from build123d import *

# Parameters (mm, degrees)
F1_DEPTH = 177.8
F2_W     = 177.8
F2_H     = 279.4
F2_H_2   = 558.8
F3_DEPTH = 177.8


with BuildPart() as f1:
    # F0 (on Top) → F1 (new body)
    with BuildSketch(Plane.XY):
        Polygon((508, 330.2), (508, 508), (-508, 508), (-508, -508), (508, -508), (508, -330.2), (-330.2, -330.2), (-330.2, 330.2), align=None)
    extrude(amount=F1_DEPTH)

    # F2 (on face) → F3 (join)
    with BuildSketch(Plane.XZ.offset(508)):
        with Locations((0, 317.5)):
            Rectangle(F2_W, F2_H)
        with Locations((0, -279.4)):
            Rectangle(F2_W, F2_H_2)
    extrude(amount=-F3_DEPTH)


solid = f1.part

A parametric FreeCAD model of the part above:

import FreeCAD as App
import Part
import Sketcher
from FreeCAD import Vector
Q = App.Units.Quantity


def add_polygon(sketch, points):
    """Adds a closed chain of lines whose ends are joined by coincident constraints."""
    first, n = sketch.GeometryCount, len(points)
    for a, b in zip(points, points[1:] + points[:1]):
        sketch.addGeometry(Part.LineSegment(App.Vector(*a, 0), App.Vector(*b, 0)), False)
    for i in range(n):
        sketch.addConstraint(Sketcher.Constraint("Coincident", first + i, 2, first + (i + 1) % n, 1))

doc = App.newDocument("Part")
body = doc.addObject("PartDesign::Body", "Body")

sketch1 = body.newObject("Sketcher::SketchObject", "Sketch")
sketch1.AttachmentSupport = (doc.getObject("XY_Plane"), [""])
sketch1.MapMode = "FlatFace"
add_polygon(sketch1, [(508, 330.2), (508, 508), (-508, 508), (-508, -508), (508, -508), (508, -330.2), (-330.2, -330.2), (-330.2, 330.2)])
sketch1.addConstraint(Sketcher.Constraint("Vertical", 0))
sketch1.addConstraint(Sketcher.Constraint("Horizontal", 1))
sketch1.addConstraint(Sketcher.Constraint("Vertical", 2))
sketch1.addConstraint(Sketcher.Constraint("Horizontal", 3))
sketch1.addConstraint(Sketcher.Constraint("Vertical", 4))
sketch1.addConstraint(Sketcher.Constraint("Horizontal", 5))
sketch1.addConstraint(Sketcher.Constraint("Vertical", 6))
sketch1.addConstraint(Sketcher.Constraint("Horizontal", 7))
sketch1.addConstraint(Sketcher.Constraint("Symmetric", 0, 2, 2, 2, -1, 1))
sketch1.addConstraint(Sketcher.Constraint("Symmetric", 4, 2, 7, 2, -1))
sketch1.addConstraint(Sketcher.Constraint("Equal", 3, 2))
sketch1.addConstraint(Sketcher.Constraint("DistanceX", 1, 2, 1, 1, Q("40 in")))
sketch1.addConstraint(Sketcher.Constraint("DistanceX", 5, 2, 5, 1, Q("33 in")))
sketch1.addConstraint(Sketcher.Constraint("DistanceY", 0, 1, 0, 2, Q("7 in")))
pad1 = body.newObject("PartDesign::Pad", "Pad")
pad1.Profile = sketch1
pad1.Length = Q("7 in")

sketch2 = body.newObject("Sketcher::SketchObject", "Sketch001")
sketch2.AttachmentSupport = (doc.getObject("XZ_Plane"), [""])
sketch2.MapMode = "FlatFace"
sketch2.AttachmentOffset = App.Placement(Vector(0, 0, 20 * 25.4), App.Rotation())
add_polygon(sketch2, [(-88.9, 457.2), (-88.9, 177.8), (88.9, 177.8), (88.9, 457.2)])
add_polygon(sketch2, [(-88.9, 0), (-88.9, -558.8), (88.9, -558.8), (88.9, 0)])
sketch2.addConstraint(Sketcher.Constraint("Vertical", 0))
sketch2.addConstraint(Sketcher.Constraint("Horizontal", 1))
sketch2.addConstraint(Sketcher.Constraint("Vertical", 2))
sketch2.addConstraint(Sketcher.Constraint("Horizontal", 3))
sketch2.addConstraint(Sketcher.Constraint("Vertical", 4))
sketch2.addConstraint(Sketcher.Constraint("Horizontal", 5))
sketch2.addConstraint(Sketcher.Constraint("Vertical", 6))
sketch2.addConstraint(Sketcher.Constraint("Horizontal", 7))
sketch2.addConstraint(Sketcher.Constraint("Symmetric", 6, 2, 7, 2, -1, 1))
sketch2.addConstraint(Sketcher.Constraint("Vertical", 3, 2, 4, 2))
sketch2.addConstraint(Sketcher.Constraint("Vertical", 2, 2, 5, 2))
sketch2.addConstraint(Sketcher.Constraint("DistanceX", 1, 1, 1, 2, Q("7 in")))
sketch2.addConstraint(Sketcher.Constraint("DistanceY", 0, 2, 0, 1, Q("11 in")))
sketch2.addConstraint(Sketcher.Constraint("DistanceY", 4, 2, 4, 1, Q("22 in")))
sketch2.addConstraint(Sketcher.Constraint("DistanceY", -1, 1, 0, 2, Q("7 in")))
pad2 = body.newObject("PartDesign::Pad", "Pad001")
pad2.Profile = sketch2
pad2.Length = Q("7 in")
pad2.Reversed = True

doc.recompute()
